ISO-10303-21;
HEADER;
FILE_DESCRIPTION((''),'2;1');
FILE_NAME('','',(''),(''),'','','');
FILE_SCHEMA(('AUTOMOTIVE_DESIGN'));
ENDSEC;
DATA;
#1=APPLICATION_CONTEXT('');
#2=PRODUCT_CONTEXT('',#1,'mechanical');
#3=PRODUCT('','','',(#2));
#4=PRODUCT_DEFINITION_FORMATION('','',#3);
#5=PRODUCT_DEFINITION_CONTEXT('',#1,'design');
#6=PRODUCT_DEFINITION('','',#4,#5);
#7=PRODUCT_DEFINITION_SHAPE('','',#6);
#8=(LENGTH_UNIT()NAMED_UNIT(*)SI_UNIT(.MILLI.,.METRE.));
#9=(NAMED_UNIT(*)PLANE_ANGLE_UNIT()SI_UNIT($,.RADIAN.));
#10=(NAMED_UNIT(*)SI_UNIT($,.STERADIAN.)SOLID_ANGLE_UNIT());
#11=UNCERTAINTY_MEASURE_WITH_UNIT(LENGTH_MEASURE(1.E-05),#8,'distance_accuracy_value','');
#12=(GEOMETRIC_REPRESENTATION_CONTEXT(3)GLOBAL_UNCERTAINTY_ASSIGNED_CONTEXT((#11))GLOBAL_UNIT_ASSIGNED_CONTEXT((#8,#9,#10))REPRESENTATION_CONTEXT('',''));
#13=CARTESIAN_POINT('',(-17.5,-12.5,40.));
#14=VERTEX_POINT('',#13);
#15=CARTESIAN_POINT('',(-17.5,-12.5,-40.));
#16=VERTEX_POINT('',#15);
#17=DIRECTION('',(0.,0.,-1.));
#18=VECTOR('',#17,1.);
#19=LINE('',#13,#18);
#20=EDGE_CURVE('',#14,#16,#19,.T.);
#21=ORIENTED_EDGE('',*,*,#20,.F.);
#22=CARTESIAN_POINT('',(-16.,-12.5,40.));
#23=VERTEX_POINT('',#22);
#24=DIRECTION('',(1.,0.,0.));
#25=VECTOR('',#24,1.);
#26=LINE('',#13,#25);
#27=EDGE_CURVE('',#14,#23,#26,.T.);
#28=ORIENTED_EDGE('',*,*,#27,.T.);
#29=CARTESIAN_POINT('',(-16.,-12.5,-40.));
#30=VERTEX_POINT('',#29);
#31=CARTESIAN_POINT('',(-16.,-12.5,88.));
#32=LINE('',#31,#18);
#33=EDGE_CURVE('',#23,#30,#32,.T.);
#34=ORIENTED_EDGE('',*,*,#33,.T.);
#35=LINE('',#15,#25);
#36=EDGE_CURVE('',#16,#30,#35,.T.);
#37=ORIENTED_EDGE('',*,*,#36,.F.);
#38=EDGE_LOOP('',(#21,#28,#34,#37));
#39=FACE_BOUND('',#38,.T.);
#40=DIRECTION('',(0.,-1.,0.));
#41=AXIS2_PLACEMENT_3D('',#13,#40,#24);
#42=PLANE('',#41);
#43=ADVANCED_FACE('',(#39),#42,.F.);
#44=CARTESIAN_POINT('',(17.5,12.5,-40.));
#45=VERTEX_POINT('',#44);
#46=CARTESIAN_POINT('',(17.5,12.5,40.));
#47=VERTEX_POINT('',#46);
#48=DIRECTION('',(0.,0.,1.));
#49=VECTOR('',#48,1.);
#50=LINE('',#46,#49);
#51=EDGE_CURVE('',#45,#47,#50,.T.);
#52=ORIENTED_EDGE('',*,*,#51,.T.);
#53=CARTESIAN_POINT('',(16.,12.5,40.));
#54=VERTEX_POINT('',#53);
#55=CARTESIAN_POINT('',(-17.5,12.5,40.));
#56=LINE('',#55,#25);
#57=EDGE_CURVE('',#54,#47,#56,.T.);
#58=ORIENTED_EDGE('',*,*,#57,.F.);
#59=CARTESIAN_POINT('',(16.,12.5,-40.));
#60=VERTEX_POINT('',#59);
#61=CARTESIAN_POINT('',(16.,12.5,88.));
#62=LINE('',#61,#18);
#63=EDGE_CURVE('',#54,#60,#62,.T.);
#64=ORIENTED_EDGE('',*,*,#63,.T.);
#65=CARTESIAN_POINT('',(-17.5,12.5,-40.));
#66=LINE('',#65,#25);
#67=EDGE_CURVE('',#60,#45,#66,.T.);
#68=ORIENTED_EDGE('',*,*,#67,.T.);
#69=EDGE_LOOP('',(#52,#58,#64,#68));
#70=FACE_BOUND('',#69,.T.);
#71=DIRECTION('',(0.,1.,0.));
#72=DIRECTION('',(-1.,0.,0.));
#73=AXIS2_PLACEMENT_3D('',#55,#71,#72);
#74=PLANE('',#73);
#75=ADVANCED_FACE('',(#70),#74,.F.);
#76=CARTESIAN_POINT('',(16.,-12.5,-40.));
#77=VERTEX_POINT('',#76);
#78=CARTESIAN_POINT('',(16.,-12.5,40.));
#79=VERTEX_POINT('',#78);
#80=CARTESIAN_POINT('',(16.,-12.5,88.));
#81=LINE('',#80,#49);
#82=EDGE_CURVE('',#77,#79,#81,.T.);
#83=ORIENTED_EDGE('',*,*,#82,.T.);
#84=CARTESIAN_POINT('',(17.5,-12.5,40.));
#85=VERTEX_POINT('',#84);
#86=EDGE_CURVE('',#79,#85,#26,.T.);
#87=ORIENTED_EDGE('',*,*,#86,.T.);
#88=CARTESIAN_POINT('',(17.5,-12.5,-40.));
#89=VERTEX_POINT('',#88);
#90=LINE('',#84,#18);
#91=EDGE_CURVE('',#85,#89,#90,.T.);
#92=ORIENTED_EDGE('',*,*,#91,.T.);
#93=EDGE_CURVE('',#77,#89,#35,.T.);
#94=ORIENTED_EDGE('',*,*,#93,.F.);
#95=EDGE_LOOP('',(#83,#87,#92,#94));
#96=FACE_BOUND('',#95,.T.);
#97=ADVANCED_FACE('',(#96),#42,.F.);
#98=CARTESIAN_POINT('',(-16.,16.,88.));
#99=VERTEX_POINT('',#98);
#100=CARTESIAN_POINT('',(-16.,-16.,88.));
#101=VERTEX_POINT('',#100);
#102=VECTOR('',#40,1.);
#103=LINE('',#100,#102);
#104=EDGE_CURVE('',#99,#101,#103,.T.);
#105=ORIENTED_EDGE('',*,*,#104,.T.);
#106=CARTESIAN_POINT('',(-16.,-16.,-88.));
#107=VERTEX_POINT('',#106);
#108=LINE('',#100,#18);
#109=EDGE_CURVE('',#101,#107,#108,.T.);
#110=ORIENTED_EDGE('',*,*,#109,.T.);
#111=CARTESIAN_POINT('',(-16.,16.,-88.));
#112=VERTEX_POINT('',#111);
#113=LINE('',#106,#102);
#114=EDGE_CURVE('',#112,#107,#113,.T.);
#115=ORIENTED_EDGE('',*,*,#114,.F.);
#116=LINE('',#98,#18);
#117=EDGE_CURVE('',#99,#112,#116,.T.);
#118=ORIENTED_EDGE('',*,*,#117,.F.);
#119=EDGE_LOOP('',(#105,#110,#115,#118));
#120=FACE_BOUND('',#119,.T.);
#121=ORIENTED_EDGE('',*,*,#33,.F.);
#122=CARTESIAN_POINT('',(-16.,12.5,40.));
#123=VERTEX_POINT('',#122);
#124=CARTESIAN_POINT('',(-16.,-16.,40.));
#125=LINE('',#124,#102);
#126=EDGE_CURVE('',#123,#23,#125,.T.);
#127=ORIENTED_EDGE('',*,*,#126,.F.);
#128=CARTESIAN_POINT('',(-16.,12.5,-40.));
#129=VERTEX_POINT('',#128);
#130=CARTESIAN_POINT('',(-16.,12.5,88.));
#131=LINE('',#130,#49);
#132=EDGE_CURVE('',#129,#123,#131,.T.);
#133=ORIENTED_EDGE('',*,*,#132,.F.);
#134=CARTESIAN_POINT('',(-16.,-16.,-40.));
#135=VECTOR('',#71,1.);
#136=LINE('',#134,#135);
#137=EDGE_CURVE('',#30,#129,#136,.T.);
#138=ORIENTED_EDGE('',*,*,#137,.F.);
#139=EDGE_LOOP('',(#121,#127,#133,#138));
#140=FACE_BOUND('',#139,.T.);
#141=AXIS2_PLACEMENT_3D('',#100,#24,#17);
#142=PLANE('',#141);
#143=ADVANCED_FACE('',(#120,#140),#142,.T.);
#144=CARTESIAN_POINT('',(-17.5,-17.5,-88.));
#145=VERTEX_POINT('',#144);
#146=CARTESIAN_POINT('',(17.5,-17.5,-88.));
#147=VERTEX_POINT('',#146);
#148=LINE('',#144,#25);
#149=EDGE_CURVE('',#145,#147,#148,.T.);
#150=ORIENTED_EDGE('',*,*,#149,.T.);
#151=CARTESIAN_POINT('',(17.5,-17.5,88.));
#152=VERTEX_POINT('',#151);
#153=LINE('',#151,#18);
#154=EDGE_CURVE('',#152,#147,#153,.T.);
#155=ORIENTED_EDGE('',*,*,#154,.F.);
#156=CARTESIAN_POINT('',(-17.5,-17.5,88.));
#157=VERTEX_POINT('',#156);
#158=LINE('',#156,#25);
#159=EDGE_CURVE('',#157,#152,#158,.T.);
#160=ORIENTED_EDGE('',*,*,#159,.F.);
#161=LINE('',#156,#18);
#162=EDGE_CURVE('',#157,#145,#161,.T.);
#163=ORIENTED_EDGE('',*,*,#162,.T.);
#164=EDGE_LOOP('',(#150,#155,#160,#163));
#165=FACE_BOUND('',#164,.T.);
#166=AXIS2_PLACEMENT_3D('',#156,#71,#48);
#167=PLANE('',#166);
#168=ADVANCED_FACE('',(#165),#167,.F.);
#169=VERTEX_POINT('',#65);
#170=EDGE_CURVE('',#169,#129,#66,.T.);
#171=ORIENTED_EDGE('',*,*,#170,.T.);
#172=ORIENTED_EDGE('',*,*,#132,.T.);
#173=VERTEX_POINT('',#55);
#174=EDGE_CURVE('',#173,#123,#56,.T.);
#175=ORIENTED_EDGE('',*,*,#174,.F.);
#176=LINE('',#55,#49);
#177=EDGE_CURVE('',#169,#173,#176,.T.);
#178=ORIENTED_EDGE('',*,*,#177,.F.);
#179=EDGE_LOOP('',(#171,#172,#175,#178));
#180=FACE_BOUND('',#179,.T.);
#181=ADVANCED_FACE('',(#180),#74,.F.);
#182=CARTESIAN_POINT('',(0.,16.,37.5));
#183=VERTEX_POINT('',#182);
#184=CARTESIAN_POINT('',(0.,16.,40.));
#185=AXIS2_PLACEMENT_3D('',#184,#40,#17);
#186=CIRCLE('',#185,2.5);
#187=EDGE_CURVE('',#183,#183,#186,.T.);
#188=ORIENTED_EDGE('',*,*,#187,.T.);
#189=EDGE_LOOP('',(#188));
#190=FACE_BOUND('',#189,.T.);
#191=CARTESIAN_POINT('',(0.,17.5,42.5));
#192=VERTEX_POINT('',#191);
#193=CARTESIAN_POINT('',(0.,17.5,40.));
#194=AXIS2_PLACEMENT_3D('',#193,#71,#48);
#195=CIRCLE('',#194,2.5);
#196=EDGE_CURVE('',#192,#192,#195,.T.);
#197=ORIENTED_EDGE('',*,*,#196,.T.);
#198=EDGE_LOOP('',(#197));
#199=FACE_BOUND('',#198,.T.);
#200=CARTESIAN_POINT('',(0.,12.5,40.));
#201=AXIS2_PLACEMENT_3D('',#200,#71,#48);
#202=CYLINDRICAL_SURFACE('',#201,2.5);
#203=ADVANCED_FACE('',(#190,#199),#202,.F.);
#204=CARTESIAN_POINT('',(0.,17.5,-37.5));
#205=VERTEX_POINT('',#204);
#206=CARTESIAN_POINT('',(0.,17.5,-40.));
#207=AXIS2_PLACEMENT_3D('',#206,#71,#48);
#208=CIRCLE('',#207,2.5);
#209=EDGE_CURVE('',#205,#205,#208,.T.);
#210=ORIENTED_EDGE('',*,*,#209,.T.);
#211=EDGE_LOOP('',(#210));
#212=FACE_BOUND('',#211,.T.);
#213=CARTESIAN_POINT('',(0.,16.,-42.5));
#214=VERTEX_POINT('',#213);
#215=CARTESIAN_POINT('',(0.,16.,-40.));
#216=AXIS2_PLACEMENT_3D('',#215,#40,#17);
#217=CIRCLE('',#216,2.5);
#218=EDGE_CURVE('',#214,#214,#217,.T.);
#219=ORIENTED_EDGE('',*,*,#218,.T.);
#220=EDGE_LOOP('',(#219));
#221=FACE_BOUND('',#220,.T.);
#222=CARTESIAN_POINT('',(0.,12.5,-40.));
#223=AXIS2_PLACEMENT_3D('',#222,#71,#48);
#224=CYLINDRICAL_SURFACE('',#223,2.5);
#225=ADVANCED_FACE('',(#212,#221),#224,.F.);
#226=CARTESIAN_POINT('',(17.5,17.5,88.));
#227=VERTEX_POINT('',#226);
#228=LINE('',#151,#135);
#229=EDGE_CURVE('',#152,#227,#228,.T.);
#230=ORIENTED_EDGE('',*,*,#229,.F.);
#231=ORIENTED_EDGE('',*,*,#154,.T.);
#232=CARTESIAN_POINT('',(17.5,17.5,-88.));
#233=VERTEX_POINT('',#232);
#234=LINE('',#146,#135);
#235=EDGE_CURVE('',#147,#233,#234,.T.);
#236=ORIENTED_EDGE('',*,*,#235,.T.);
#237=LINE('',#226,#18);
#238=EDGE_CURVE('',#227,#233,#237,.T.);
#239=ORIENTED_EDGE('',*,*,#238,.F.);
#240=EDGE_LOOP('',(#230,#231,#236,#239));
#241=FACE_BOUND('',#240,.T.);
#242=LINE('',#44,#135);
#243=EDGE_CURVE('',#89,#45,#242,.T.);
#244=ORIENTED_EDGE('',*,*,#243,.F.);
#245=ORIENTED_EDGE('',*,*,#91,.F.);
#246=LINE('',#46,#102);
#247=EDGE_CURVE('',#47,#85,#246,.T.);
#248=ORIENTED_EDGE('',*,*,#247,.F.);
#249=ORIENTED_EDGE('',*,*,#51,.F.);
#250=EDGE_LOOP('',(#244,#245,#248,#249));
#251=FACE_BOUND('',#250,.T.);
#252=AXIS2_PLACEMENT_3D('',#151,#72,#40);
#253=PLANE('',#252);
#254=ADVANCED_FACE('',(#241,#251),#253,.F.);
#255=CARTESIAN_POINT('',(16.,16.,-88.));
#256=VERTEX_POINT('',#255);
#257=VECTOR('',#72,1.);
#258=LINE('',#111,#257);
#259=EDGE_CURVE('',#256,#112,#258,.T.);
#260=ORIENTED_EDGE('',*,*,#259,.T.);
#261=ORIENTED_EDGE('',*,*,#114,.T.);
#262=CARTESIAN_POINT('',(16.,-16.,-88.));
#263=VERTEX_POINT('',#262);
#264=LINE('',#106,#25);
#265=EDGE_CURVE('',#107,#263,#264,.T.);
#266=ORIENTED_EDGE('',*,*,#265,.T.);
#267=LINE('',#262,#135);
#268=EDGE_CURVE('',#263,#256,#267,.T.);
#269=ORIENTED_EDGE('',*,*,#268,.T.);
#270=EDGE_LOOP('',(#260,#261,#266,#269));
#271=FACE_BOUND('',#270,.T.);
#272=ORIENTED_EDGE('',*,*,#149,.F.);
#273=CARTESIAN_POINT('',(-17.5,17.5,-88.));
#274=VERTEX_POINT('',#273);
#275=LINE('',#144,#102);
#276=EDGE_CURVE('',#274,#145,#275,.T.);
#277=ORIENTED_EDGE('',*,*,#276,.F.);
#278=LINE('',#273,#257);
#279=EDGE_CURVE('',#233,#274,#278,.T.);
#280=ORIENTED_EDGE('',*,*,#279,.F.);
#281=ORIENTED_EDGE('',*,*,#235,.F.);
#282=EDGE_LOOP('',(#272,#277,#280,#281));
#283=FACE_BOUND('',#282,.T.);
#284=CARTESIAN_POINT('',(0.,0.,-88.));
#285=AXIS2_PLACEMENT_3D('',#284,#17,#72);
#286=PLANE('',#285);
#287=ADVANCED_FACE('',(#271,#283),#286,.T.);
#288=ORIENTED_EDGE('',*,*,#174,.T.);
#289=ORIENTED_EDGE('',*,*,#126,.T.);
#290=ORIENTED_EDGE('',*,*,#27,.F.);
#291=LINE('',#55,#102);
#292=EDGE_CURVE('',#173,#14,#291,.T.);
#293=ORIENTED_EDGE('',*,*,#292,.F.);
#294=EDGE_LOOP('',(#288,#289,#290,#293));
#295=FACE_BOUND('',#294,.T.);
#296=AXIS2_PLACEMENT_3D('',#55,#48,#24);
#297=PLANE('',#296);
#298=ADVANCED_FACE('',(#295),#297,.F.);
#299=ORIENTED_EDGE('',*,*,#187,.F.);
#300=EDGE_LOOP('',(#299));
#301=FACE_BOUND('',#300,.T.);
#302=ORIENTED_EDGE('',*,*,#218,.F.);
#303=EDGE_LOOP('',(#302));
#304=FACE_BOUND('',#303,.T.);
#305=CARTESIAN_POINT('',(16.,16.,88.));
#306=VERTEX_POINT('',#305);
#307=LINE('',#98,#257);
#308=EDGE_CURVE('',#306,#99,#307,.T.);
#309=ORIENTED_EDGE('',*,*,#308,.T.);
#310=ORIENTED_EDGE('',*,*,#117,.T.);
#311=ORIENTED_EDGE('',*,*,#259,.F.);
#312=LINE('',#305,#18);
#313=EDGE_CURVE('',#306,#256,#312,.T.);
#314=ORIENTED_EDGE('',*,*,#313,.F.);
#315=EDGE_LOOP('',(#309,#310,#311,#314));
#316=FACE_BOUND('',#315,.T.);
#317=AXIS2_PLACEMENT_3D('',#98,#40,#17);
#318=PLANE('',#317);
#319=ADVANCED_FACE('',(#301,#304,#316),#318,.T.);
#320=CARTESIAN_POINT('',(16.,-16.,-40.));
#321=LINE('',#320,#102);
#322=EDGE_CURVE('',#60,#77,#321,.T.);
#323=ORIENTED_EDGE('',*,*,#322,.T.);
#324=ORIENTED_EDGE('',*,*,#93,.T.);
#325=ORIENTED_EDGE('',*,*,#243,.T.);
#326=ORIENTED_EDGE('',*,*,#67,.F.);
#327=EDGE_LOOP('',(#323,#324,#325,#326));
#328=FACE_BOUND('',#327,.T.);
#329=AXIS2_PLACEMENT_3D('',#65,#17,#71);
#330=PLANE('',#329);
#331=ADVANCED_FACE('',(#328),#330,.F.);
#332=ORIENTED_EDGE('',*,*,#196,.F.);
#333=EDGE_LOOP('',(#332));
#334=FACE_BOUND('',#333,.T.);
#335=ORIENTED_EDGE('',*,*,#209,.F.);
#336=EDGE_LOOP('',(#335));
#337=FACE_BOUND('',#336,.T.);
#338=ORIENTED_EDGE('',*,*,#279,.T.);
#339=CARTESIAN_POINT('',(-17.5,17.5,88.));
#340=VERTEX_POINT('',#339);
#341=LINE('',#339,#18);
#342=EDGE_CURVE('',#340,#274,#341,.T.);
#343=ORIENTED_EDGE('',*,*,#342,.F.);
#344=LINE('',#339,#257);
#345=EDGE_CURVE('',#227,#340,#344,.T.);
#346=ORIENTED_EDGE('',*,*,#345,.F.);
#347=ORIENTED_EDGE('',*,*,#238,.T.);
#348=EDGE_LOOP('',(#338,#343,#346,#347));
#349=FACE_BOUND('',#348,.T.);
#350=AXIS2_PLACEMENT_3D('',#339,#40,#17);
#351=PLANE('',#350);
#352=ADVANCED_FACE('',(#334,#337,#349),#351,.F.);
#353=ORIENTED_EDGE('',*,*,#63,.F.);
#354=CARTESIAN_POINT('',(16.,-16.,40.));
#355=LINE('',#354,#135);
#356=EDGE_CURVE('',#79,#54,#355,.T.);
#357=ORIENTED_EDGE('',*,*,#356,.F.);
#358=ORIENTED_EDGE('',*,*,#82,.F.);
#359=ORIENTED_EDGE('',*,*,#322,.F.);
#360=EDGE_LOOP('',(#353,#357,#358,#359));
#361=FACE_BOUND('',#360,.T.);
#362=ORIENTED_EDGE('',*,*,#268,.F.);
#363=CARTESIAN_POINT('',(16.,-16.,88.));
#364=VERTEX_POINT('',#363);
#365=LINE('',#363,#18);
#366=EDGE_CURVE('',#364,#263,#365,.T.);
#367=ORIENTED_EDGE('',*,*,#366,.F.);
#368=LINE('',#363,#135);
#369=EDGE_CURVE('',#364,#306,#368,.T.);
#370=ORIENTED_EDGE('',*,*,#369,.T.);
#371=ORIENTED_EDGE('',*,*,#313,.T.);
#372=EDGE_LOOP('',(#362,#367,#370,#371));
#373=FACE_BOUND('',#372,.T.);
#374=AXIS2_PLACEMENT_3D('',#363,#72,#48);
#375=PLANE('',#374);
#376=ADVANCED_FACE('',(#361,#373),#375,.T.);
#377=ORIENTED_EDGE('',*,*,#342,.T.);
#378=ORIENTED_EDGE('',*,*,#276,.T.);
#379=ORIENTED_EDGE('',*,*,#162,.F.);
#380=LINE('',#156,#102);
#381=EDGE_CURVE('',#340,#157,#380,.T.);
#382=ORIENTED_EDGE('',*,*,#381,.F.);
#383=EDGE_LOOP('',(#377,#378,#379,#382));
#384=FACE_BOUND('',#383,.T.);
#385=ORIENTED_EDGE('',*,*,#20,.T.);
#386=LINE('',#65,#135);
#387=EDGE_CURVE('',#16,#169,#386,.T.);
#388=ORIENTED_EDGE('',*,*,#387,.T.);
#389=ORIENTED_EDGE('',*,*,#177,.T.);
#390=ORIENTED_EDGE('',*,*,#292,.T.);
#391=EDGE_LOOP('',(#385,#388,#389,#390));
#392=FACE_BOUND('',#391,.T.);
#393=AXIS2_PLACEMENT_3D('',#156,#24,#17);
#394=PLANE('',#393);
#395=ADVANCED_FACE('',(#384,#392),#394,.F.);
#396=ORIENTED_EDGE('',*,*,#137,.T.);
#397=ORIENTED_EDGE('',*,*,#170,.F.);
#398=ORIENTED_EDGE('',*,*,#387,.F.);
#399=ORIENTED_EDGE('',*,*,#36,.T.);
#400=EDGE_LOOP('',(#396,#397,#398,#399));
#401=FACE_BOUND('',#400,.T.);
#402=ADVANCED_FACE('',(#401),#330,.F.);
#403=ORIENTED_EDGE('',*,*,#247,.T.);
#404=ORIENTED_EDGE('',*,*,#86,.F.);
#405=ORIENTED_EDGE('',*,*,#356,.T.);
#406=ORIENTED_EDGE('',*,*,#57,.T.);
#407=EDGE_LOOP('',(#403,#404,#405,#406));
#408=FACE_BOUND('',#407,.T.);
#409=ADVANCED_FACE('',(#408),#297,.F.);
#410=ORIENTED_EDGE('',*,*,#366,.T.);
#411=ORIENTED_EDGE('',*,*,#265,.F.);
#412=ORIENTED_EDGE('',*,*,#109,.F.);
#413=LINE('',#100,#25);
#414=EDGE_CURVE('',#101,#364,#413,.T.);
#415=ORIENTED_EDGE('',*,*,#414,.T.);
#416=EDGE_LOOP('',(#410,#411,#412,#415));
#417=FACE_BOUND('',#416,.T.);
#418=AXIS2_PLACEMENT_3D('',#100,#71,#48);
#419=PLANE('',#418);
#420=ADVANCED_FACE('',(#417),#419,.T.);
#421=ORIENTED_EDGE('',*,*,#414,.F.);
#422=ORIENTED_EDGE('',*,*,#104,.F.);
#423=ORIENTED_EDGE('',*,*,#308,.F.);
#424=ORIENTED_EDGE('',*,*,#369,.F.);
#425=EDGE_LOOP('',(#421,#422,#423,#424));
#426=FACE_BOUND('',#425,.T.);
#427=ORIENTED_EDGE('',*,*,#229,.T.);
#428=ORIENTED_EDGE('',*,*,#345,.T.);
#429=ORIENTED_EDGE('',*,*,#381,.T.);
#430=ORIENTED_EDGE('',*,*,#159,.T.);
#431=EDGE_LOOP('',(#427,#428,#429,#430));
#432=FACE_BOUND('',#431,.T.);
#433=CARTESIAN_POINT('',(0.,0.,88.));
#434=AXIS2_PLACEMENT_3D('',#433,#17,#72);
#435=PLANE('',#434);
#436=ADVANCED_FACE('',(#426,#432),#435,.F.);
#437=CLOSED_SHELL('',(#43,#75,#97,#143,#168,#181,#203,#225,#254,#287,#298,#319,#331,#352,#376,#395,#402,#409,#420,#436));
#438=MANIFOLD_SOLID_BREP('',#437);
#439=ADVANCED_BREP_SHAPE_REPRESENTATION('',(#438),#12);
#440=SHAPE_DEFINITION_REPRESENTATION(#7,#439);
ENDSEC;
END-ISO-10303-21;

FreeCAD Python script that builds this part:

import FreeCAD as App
import Part
import Sketcher
from FreeCAD import Vector
Q = App.Units.Quantity

doc = App.newDocument("Part")
body = doc.addObject("PartDesign::Body", "Body")

sketch1 = body.newObject("Sketcher::SketchObject", "Sketch")
sketch1.AttachmentSupport = (doc.getObject("XY_Plane"), [""])
sketch1.MapMode = "FlatFace"
sketch1.addGeometry([
    Part.LineSegment(Vector(-18, 18, 0), Vector(-18, -18, 0)),
    Part.LineSegment(Vector(-18, -18, 0), Vector(18, -18, 0)),
    Part.LineSegment(Vector(18, -18, 0), Vector(18, 18, 0)),
    Part.LineSegment(Vector(18, 18, 0), Vector(-18, 18, 0)),
    Part.LineSegment(Vector(16, -16, 0), Vector(-16, -16, 0)),
    Part.LineSegment(Vector(-16, -16, 0), Vector(-16, 16, 0)),
    Part.LineSegment(Vector(-16, 16, 0), Vector(16, 16, 0)),
    Part.LineSegment(Vector(16, 16, 0), Vector(16, -16, 0)),
], False)
sketch1.addConstraint([
    Sketcher.Constraint("Coincident", 0, 2, 1, 1),
    Sketcher.Constraint("Coincident", 1, 2, 2, 1),
    Sketcher.Constraint("Coincident", 2, 2, 3, 1),
    Sketcher.Constraint("Coincident", 3, 2, 0, 1),
    Sketcher.Constraint("Coincident", 4, 2, 5, 1),
    Sketcher.Constraint("Coincident", 5, 2, 6, 1),
    Sketcher.Constraint("Coincident", 6, 2, 7, 1),
    Sketcher.Constraint("Coincident", 7, 2, 4, 1),
    Sketcher.Constraint("Vertical", 0),
    Sketcher.Constraint("Horizontal", 1),
    Sketcher.Constraint("Vertical", 2),
    Sketcher.Constraint("Horizontal", 3),
    Sketcher.Constraint("Horizontal", 4),
    Sketcher.Constraint("Vertical", 5),
    Sketcher.Constraint("Horizontal", 6),
    Sketcher.Constraint("Vertical", 7),
    Sketcher.Constraint("Symmetric", 0, 2, 2, 2, -1, 1),
    Sketcher.Constraint("Symmetric", 4, 2, 6, 2, -1, 1),
    Sketcher.Constraint("Equal", 3, 0),
    Sketcher.Constraint("Equal", 6, 5),
    Sketcher.Constraint("DistanceX", 1, 1, 1, 2, Q("35 mm")),
    Sketcher.Constraint("DistanceX", 4, 2, 4, 1, Q("32 mm")),
])
pad1 = body.newObject("PartDesign::Pad", "Pad")
pad1.Profile = sketch1
pad1.Length = 176
pad1.Midplane = True

sketch2 = body.newObject("Sketcher::SketchObject", "Sketch001")
sketch2.AttachmentSupport = (doc.getObject("YZ_Plane"), [""])
sketch2.MapMode = "FlatFace"
sketch2.AttachmentOffset = App.Placement(Vector(0, 0, 17.5), App.Rotation())
sketch2.addGeometry([
    Part.LineSegment(Vector(12, 40, 0), Vector(-12, 40, 0)),
    Part.LineSegment(Vector(-12, 40, 0), Vector(-12, -40, 0)),
    Part.LineSegment(Vector(-12, -40, 0), Vector(12, -40, 0)),
    Part.LineSegment(Vector(12, -40, 0), Vector(12, 40, 0)),
], False)
sketch2.addConstraint([
    Sketcher.Constraint("Coincident", 0, 2, 1, 1),
    Sketcher.Constraint("Coincident", 1, 2, 2, 1),
    Sketcher.Constraint("Coincident", 2, 2, 3, 1),
    Sketcher.Constraint("Coincident", 3, 2, 0, 1),
    Sketcher.Constraint("Horizontal", 0),
    Sketcher.Constraint("Vertical", 1),
    Sketcher.Constraint("Horizontal", 2),
    Sketcher.Constraint("Vertical", 3),
    Sketcher.Constraint("Symmetric", 0, 2, 2, 2, -1, 1),
    Sketcher.Constraint("DistanceX", 0, 2, 0, 1, Q("25 mm")),
    Sketcher.Constraint("DistanceY", 1, 2, 1, 1, Q("80 mm")),
])
pocket1 = body.newObject("PartDesign::Pocket", "Pocket")
pocket1.Profile = sketch2
pocket1.Type = "ThroughAll"

sketch3 = body.newObject("Sketcher::SketchObject", "Sketch002")
sketch3.AttachmentSupport = (doc.getObject("XZ_Plane"), [""])
sketch3.MapMode = "FlatFace"
sketch3.AttachmentOffset = App.Placement(Vector(0, 0, -17.5), App.Rotation())
sketch3.addGeometry(Part.Circle(Vector(0, -40, 0), Vector(0, 0, 1), 2.5), False)
sketch3.addConstraint([
    Sketcher.Constraint("PointOnObject", 0, 3, -2),
    Sketcher.Constraint("Diameter", 0, Q("5 mm")),
    Sketcher.Constraint("DistanceY", 0, 3, -1, 1, Q("40 mm")),
])
pocket2 = body.newObject("PartDesign::Pocket", "Pocket001")
pocket2.Profile = sketch3
pocket2.Length = 5
pocket2.Reversed = True

sketch4 = body.newObject("Sketcher::SketchObject", "Sketch003")
sketch4.AttachmentSupport = (doc.getObject("XZ_Plane"), [""])
sketch4.MapMode = "FlatFace"
sketch4.AttachmentOffset = App.Placement(Vector(0, 0, -17.5), App.Rotation())
sketch4.addGeometry(Part.Circle(Vector(0, 40, 0), Vector(0, 0, 1), 2.5), False)
sketch4.addConstraint([
    Sketcher.Constraint("PointOnObject", 0, 3, -2),
    Sketcher.Constraint("Diameter", 0, Q("5 mm")),
    Sketcher.Constraint("DistanceY", -1, 1, 0, 3, Q("40 mm")),
])
pocket3 = body.newObject("PartDesign::Pocket", "Pocket002")
pocket3.Profile = sketch4
pocket3.Length = 5
pocket3.Reversed = True

doc.recompute()
